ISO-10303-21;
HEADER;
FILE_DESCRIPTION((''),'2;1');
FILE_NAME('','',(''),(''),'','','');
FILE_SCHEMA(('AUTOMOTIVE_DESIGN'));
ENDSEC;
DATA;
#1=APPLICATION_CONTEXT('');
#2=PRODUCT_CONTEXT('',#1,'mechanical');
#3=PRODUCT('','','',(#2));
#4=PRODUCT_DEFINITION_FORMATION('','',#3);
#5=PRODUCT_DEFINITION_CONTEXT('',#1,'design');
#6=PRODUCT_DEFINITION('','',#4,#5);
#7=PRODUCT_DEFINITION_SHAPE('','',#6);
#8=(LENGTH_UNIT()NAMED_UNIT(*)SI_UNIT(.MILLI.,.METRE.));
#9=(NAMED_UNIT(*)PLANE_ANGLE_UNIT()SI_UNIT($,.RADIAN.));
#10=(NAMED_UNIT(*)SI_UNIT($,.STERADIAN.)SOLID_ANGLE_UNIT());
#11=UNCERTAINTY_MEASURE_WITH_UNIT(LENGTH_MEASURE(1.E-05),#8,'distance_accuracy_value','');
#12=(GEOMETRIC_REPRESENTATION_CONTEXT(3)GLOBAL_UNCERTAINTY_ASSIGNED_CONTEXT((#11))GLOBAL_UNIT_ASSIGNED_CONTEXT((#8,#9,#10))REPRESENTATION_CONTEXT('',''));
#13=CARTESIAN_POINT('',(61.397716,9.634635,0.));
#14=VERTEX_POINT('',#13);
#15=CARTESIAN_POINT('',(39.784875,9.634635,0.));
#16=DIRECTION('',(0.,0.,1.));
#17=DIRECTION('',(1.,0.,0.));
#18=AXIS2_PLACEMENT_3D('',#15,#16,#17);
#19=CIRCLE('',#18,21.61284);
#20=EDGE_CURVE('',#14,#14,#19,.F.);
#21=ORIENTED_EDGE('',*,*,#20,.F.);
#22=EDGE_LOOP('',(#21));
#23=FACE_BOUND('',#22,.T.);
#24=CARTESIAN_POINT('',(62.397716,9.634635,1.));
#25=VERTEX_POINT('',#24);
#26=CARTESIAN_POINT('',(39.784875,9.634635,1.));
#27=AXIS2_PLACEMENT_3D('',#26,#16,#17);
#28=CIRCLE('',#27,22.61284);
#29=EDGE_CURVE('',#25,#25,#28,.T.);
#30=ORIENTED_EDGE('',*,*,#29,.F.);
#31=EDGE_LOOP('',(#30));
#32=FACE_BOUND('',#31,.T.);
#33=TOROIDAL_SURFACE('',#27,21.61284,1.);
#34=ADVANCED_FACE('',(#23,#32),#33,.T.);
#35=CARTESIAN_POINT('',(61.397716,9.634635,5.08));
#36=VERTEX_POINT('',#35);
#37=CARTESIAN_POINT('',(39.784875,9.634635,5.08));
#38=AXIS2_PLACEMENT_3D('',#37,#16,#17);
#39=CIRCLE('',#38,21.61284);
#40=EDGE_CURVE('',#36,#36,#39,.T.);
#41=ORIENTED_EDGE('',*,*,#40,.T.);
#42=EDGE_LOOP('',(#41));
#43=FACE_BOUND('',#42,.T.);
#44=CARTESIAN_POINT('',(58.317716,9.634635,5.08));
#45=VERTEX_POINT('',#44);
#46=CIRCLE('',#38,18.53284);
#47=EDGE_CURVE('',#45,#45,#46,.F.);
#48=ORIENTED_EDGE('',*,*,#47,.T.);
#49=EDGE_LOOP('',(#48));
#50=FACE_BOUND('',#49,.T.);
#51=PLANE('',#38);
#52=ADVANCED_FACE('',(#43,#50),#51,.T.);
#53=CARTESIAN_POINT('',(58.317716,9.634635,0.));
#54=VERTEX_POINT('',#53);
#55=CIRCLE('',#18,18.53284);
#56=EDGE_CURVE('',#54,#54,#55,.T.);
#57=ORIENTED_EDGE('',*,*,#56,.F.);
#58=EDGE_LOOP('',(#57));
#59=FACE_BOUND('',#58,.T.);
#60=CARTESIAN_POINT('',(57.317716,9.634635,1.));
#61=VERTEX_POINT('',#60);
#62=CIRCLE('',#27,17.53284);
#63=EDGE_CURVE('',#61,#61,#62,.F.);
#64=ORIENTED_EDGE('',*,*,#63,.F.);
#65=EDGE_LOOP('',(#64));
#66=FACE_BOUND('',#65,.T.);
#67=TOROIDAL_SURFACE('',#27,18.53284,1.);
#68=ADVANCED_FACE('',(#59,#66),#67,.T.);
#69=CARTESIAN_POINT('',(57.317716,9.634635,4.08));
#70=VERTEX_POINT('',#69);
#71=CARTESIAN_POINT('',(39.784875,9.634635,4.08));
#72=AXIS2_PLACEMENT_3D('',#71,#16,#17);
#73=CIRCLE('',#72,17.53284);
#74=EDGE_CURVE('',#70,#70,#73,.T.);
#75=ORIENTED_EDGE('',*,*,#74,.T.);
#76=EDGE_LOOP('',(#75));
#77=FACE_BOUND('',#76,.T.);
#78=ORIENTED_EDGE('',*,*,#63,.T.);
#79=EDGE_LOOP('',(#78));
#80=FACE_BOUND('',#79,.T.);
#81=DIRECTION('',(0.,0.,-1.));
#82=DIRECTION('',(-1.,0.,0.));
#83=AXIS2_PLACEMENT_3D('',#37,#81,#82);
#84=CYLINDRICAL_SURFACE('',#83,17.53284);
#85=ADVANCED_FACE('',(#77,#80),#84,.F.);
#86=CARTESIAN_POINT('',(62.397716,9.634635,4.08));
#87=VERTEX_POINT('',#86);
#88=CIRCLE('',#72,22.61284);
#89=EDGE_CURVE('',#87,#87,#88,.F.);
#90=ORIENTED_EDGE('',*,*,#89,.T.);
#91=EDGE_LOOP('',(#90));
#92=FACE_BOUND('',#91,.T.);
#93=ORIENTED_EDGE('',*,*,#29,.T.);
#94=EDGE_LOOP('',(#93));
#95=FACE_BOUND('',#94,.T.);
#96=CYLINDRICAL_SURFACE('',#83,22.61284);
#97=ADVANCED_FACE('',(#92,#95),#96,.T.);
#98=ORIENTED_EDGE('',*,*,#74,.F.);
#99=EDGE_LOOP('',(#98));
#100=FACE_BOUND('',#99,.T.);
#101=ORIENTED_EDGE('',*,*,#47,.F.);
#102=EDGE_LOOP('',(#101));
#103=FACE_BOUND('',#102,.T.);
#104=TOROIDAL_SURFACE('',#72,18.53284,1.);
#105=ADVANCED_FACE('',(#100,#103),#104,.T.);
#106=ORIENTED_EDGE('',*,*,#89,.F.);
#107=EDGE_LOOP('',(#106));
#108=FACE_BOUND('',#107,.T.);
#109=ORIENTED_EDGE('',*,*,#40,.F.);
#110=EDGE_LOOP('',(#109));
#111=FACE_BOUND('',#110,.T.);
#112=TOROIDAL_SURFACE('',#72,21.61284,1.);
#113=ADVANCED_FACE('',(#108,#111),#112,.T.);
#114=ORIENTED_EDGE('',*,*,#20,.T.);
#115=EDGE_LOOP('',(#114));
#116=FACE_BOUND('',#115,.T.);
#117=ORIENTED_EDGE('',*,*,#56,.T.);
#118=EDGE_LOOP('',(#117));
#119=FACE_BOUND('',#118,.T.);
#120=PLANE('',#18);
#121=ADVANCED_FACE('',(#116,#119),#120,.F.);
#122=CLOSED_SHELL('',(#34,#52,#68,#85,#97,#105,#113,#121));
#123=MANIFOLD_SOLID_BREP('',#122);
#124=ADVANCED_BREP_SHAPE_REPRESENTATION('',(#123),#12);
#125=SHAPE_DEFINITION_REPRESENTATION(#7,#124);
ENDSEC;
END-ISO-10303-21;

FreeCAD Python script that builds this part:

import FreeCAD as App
import Part
import Sketcher

V = App.Vector
Q = App.Units.Quantity


def edges_at(feature, points):
    """Names of the edges that pass closest to the given points."""
    edges = feature.Shape.Edges
    near = lambda p: min(range(len(edges)), key=lambda i: edges[i].distToShape(Part.Vertex(*p))[0])
    return sorted({f"Edge{near(p) + 1}" for p in points})

doc = App.newDocument("Part")
body = doc.addObject("PartDesign::Body", "Body")

sketch1 = body.newObject("Sketcher::SketchObject", "Sketch")
sketch1.AttachmentSupport = (doc.getObject("XY_Plane"), [""])
sketch1.MapMode = "FlatFace"
sketch1.addGeometry([
    Part.Circle(V(40, 10, 0), V(0, 0, 1), 23),
    Part.Circle(V(40, 10, 0), V(0, 0, 1), 18),
], False)
sketch1.addConstraint([
    Sketcher.Constraint("Coincident", 1, 3, 0, 3),
    Sketcher.Constraint("Diameter", 0, Q("45.225681 mm")),
    Sketcher.Constraint("Diameter", 1, Q("35.065681 mm")),
    Sketcher.Constraint("DistanceX", -1, 1, 0, 3, Q("39.784875 mm")),
    Sketcher.Constraint("DistanceY", -1, 1, 0, 3, Q("9.634635 mm")),
])
pad1 = body.newObject("PartDesign::Pad", "Pad")
pad1.Profile = sketch1
pad1.Length = 5.08
doc.recompute()

fillet = body.newObject("PartDesign::Fillet", "Fillet")
fillet.Base = (pad1, edges_at(pad1, [
    (17.172, 9.635, 0),
    (17.172, 9.635, 5.08),
    (22.252, 9.635, 0),
    (22.252, 9.635, 5.08),
]))
fillet.Radius = 1

doc.recompute()
